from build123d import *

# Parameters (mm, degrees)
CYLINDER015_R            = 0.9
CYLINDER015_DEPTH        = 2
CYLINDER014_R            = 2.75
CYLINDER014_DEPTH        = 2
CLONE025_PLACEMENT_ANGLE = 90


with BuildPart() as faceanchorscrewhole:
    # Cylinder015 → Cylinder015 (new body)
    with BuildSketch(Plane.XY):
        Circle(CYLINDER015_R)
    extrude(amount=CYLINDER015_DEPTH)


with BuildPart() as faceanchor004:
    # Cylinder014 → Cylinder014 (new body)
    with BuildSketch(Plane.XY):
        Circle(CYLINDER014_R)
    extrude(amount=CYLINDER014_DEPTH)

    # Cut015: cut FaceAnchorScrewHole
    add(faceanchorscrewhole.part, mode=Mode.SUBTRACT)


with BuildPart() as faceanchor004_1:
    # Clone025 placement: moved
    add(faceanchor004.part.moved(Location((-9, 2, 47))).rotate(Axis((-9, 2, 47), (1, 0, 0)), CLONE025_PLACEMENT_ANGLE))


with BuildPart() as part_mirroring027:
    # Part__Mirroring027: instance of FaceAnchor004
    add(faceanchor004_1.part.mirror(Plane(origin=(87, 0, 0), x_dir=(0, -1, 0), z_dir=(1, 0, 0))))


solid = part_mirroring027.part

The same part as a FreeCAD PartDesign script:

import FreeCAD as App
import Part
import Sketcher
from FreeCAD import Vector
Q = App.Units.Quantity

doc = App.newDocument("Part")
body = doc.addObject("PartDesign::Body", "Body")

sketch1 = doc.addObject("Sketcher::SketchObject", "Sketch")
body.addObject(sketch1)
sketch1.AttachmentSupport = (doc.XY_Plane, [""])
sketch1.MapMode = "FlatFace"
sketch1.addGeometry(Part.Circle(Vector(0, 0, 0), Vector(0, 0, 1), 0.9), False)
sketch1.addConstraint([
    Sketcher.Constraint("Coincident", 0, 3, -1, 1),
    Sketcher.Constraint("Diameter", 0, Q("1.8 mm")),
])
pad1 = doc.addObject("PartDesign::Pad", "Pad")
body.addObject(pad1)
pad1.Profile = sketch1
pad1.Length = 2
body2 = doc.addObject("PartDesign::Body", "Body001")

sketch2 = doc.addObject("Sketcher::SketchObject", "Sketch001")
body2.addObject(sketch2)
sketch2.AttachmentSupport = (doc.getObject("XY_Plane001"), [""])
sketch2.MapMode = "FlatFace"
sketch2.addGeometry(Part.Circle(Vector(0, 0, 0), Vector(0, 0, 1), 2.8), False)
sketch2.addConstraint([
    Sketcher.Constraint("Coincident", 0, 3, -1, 1),
    Sketcher.Constraint("Diameter", 0, Q("5.5 mm")),
])
pad2 = doc.addObject("PartDesign::Pad", "Pad001")
body2.addObject(pad2)
pad2.Profile = sketch2
pad2.Length = 2
doc.recompute()

boolean = doc.addObject("PartDesign::Boolean", "Boolean")
body2.addObject(boolean)
boolean.Type = "Cut"
boolean.addObjects([body])
body3 = doc.addObject("PartDesign::Body", "Body002")
doc.recompute()

body2.Placement = App.Placement(Vector(-9, 2, 47), App.Rotation(Vector(1, 0, 0), 90))
boolean2 = doc.addObject("PartDesign::Boolean", "Boolean001")
body3.addObject(boolean2)
boolean2.Type = "Fuse"
boolean2.addObjects([body2])
body4 = doc.addObject("PartDesign::Body", "Body003")
doc.recompute()

mirroring = doc.addObject("Part::Mirroring", "Mirroring")
mirroring.Source = body3
mirroring.Base = Vector(87, 0, 0)
mirroring.Normal = Vector(1, 0, 0)
body4.BaseFeature = mirroring
doc.recompute()
body3.Visibility = False
mirroring.Visibility = False

doc.recompute()
